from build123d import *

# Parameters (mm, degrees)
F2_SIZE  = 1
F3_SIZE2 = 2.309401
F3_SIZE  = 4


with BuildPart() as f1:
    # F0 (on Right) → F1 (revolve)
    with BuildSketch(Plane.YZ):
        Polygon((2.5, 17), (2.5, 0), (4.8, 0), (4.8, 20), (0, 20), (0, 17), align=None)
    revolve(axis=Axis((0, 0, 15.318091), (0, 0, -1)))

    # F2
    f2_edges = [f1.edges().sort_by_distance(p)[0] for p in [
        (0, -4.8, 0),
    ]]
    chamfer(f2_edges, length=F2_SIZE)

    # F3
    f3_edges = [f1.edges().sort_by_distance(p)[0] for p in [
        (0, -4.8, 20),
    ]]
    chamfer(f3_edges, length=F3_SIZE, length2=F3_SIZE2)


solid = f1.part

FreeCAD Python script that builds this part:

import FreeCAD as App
import Part
import Sketcher


def edges_at(feature, points):
    """Names of the edges that pass closest to the given points."""
    edges = feature.Shape.Edges
    near = lambda p: min(range(len(edges)), key=lambda i: edges[i].distToShape(Part.Vertex(*p))[0])
    return sorted({f"Edge{near(p) + 1}" for p in points})


def add_polygon(sketch, points):
    """Adds a closed chain of lines whose ends are joined by coincident constraints."""
    first, n = sketch.GeometryCount, len(points)
    for a, b in zip(points, points[1:] + points[:1]):
        sketch.addGeometry(Part.LineSegment(App.Vector(*a, 0), App.Vector(*b, 0)), False)
    for i in range(n):
        sketch.addConstraint(Sketcher.Constraint("Coincident", first + i, 2, first + (i + 1) % n, 1))

doc = App.newDocument("Part")
body = doc.addObject("PartDesign::Body", "Body")

# Sketch on YZ plane
sketch1 = body.newObject("Sketcher::SketchObject", "Sketch")
sketch1.AttachmentSupport = (doc.getObject("YZ_Plane"), [""])
sketch1.MapMode = "FlatFace"
add_polygon(sketch1, [(2.5, 17), (2.5, 0), (4.8, 0), (4.8, 20), (0, 20), (0, 17)])  # lines 0-5
sketch1.addConstraint([
    Sketcher.Constraint("Vertical", 0),
    Sketcher.Constraint("Horizontal", 1),
    Sketcher.Constraint("Vertical", 2),
    Sketcher.Constraint("Horizontal", 3),
    Sketcher.Constraint("Vertical", 4),
    Sketcher.Constraint("Horizontal", 5),
    Sketcher.Constraint("PointOnObject", 0, 2, -1),
    Sketcher.Constraint("PointOnObject", 3, 2, -2),
    Sketcher.Constraint("DistanceY", 0, 2, 0, 1, 17.0),
    Sketcher.Constraint("DistanceY", 2, 1, 2, 2, 20.0),
    Sketcher.Constraint("DistanceX", 1, 1, 1, 2, 2.3),
    Sketcher.Constraint("DistanceX", 3, 2, 3, 1, 4.8),
])
revolution = body.newObject("PartDesign::Revolution", "Revolution")
revolution.Profile = sketch1
revolution.ReferenceAxis = (sketch1, ["V_Axis"])
revolution.Angle = 360
doc.recompute()

chamfer = body.newObject("PartDesign::Chamfer", "Chamfer")
chamfer.Base = (revolution, edges_at(revolution, [(0, -4.8, 0)]))
chamfer.Size = 1
doc.recompute()

chamfer2 = body.newObject("PartDesign::Chamfer", "Chamfer001")
chamfer2.Base = (chamfer, edges_at(chamfer, [(0, -4.8, 20)]))
chamfer2.ChamferType = "Two distances"
chamfer2.Size = 4
chamfer2.Size2 = 2.309401

doc.recompute()
